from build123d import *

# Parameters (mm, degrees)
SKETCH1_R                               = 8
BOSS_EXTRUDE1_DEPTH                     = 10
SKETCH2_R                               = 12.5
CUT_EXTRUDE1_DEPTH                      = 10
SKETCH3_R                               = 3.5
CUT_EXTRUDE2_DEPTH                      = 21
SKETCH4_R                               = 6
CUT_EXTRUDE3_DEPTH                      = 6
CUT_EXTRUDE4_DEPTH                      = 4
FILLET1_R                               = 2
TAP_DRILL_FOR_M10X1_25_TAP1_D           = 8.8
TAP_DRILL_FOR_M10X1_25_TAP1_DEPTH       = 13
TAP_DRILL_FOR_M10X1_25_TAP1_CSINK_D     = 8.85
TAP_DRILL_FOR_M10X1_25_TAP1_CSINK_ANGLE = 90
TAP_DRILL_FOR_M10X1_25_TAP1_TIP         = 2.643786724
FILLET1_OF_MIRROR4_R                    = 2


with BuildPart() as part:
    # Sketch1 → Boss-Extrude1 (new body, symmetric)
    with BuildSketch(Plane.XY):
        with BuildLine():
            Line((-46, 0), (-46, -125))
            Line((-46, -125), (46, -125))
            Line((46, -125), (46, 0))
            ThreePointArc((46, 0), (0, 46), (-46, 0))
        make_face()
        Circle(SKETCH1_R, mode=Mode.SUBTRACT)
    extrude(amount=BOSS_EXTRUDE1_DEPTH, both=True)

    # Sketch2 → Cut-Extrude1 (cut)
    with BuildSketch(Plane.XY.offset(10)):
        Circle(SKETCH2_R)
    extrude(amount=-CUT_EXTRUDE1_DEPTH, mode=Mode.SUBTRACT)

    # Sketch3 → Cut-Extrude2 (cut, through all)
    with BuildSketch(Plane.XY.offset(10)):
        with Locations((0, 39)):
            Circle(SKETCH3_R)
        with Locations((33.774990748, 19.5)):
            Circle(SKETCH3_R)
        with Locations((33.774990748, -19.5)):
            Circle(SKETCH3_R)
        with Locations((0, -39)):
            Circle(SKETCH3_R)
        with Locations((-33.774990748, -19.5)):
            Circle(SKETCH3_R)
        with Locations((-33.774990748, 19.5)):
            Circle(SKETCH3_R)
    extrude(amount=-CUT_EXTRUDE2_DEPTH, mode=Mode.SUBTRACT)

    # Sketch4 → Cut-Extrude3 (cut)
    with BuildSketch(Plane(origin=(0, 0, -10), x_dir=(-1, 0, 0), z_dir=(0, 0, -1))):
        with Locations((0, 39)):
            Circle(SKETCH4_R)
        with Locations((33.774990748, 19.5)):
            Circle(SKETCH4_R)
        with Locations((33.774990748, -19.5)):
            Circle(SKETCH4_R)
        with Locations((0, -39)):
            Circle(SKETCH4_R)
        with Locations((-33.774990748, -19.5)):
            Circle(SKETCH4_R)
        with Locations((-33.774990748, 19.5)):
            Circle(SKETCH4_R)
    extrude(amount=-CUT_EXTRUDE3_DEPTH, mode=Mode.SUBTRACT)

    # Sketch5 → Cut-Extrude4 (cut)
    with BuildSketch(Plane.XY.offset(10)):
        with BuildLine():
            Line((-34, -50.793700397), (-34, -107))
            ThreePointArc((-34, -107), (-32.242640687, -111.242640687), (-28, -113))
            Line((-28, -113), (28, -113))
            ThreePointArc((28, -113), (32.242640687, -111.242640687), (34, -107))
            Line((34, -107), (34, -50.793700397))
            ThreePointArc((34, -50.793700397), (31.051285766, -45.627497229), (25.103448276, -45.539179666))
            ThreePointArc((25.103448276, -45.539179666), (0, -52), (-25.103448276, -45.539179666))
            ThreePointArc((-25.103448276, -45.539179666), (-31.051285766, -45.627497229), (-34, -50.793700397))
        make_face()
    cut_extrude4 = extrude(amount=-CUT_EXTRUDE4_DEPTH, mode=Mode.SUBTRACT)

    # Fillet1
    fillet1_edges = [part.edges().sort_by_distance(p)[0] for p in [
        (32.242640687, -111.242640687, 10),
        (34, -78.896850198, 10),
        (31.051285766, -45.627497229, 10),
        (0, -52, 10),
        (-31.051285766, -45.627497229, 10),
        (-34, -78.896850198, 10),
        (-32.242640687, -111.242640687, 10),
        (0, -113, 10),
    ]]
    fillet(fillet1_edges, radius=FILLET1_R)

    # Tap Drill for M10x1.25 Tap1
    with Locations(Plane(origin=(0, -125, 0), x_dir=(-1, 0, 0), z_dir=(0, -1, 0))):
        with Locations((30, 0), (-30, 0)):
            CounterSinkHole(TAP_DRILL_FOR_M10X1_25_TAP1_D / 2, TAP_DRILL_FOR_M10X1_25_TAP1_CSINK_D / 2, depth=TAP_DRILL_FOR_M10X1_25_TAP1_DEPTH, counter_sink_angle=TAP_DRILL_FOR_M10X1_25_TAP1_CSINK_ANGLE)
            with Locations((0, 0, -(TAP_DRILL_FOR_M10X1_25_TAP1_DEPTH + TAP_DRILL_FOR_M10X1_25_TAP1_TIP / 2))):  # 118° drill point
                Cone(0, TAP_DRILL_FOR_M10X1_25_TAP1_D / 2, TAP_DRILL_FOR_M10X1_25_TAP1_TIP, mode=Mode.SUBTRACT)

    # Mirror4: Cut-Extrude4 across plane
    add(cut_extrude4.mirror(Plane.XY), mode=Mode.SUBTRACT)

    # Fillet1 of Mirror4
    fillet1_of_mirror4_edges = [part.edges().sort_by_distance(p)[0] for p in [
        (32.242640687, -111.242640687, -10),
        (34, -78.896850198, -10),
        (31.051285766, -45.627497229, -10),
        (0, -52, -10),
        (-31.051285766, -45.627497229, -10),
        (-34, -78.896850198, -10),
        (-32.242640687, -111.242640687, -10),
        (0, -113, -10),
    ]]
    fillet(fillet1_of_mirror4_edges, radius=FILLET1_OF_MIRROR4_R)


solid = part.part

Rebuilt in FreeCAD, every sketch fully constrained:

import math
import FreeCAD as App
import Part
import Sketcher

V = App.Vector
Q = App.Units.Quantity


def edges_at(feature, points):
    """Names of the edges that pass closest to the given points."""
    edges = feature.Shape.Edges
    near = lambda p: min(range(len(edges)), key=lambda i: edges[i].distToShape(Part.Vertex(*p))[0])
    return sorted({f"Edge{near(p) + 1}" for p in points})

doc = App.newDocument("Part")
body = doc.addObject("PartDesign::Body", "Body")

# Sketch on XY plane
sketch1 = body.newObject("Sketcher::SketchObject", "Sketch")
sketch1.AttachmentSupport = (doc.getObject("XY_Plane"), [""])
sketch1.MapMode = "FlatFace"
sketch1.addGeometry([
    Part.LineSegment(V(-46, 0, 0), V(-46, -125, 0)),  # 0
    Part.LineSegment(V(-46, -125, 0), V(46, -125, 0)),  # 1
    Part.LineSegment(V(46, -125, 0), V(46, 0, 0)),  # 2
    Part.ArcOfCircle(Part.Circle(V(0, 0, 0), V(0, 0, 1), 46), math.radians(0), math.radians(180)),  # 3
    Part.Circle(V(0, 0, 0), V(0, 0, 1), 8),  # 4
], False)
sketch1.addConstraint([
    Sketcher.Constraint("Coincident", 0, 2, 1, 1),
    Sketcher.Constraint("Coincident", 1, 2, 2, 1),
    Sketcher.Constraint("Tangent", 2, 2, 3, 1),
    Sketcher.Constraint("Tangent", 3, 2, 0, 1),
    Sketcher.Constraint("Vertical", 0),
    Sketcher.Constraint("Horizontal", 1),
    Sketcher.Constraint("Vertical", 2),
    Sketcher.Constraint("Coincident", 3, 3, -1, 1),
    Sketcher.Constraint("Coincident", 4, 3, -1, 1),
    Sketcher.Constraint("Diameter", 4, Q("16 mm")),
    Sketcher.Constraint("Radius", 3, Q("46 mm")),
    Sketcher.Constraint("DistanceY", 0, 2, 0, 1, Q("125 mm")),
])
pad1 = body.newObject("PartDesign::Pad", "Pad")
pad1.Profile = sketch1
pad1.Length = 20
pad1.Midplane = True

# Sketch on XY plane
sketch2 = body.newObject("Sketcher::SketchObject", "Sketch001")
sketch2.AttachmentSupport = (doc.getObject("XY_Plane"), [""])
sketch2.MapMode = "FlatFace"
sketch2.AttachmentOffset = App.Placement(V(0, 0, 10), App.Rotation())
sketch2.addGeometry(Part.Circle(V(0, 0, 0), V(0, 0, 1), 12), False)
sketch2.addConstraint([
    Sketcher.Constraint("Coincident", 0, 3, -1, 1),
    Sketcher.Constraint("Diameter", 0, Q("25 mm")),
])
pocket1 = body.newObject("PartDesign::Pocket", "Pocket")
pocket1.Profile = sketch2
pocket1.Length = 10

# Sketch on XY plane
sketch3 = body.newObject("Sketcher::SketchObject", "Sketch002")
sketch3.AttachmentSupport = (doc.getObject("XY_Plane"), [""])
sketch3.MapMode = "FlatFace"
sketch3.AttachmentOffset = App.Placement(V(0, 0, 10), App.Rotation())
sketch3.addGeometry([
    Part.Circle(V(0, 39, 0), V(0, 0, 1), 3.5),  # 0
    Part.Circle(V(33.8, 19.5, 0), V(0, 0, 1), 3.5),  # 1
    Part.Circle(V(33.8, -19.5, 0), V(0, 0, 1), 3.5),  # 2
    Part.Circle(V(0, -39, 0), V(0, 0, 1), 3.5),  # 3
    Part.Circle(V(-33.8, -19.5, 0), V(0, 0, 1), 3.5),  # 4
    Part.Circle(V(-33.8, 19.5, 0), V(0, 0, 1), 3.5),  # 5
], False)
sketch3.addConstraint([
    Sketcher.Constraint("Equal", 0, 1),
    Sketcher.Constraint("Equal", 1, 2),
    Sketcher.Constraint("Equal", 2, 3),
    Sketcher.Constraint("Equal", 3, 4),
    Sketcher.Constraint("Equal", 4, 5),
    Sketcher.Constraint("Symmetric", 0, 3, 3, 3, -1, 1),
    Sketcher.Constraint("Symmetric", 1, 3, 4, 3, -1, 1),
    Sketcher.Constraint("Symmetric", 2, 3, 5, 3, -1, 1),
    Sketcher.Constraint("Symmetric", 2, 3, 4, 3, -2),
    Sketcher.Constraint("PointOnObject", 0, 3, -2),
    Sketcher.Constraint("Diameter", 0, Q("7 mm")),
    Sketcher.Constraint("DistanceY", -1, 1, 0, 3, Q("39 mm")),
    Sketcher.Constraint("DistanceY", 2, 3, 1, 3, Q("39 mm")),
    Sketcher.Constraint("DistanceX", -1, 1, 1, 3, Q("33.774991 mm")),
])
pocket2 = body.newObject("PartDesign::Pocket", "Pocket001")
pocket2.Profile = sketch3
pocket2.Type = "ThroughAll"

# Sketch on XY plane
sketch4 = body.newObject("Sketcher::SketchObject", "Sketch003")
sketch4.AttachmentSupport = (doc.getObject("XY_Plane"), [""])
sketch4.MapMode = "FlatFace"
sketch4.AttachmentOffset = App.Placement(V(0, 0, -10), App.Rotation())
sketch4.addGeometry([
    Part.Circle(V(0, 39, 0), V(0, 0, 1), 6),  # 0
    Part.Circle(V(-34, 20, 0), V(0, 0, 1), 6),  # 1
    Part.Circle(V(-34, -20, 0), V(0, 0, 1), 6),  # 2
    Part.Circle(V(0, -39, 0), V(0, 0, 1), 6),  # 3
    Part.Circle(V(34, -20, 0), V(0, 0, 1), 6),  # 4
    Part.Circle(V(34, 20, 0), V(0, 0, 1), 6),  # 5
], False)
sketch4.addConstraint([
    Sketcher.Constraint("Equal", 0, 1),
    Sketcher.Constraint("Equal", 1, 2),
    Sketcher.Constraint("Equal", 2, 3),
    Sketcher.Constraint("Equal", 3, 4),
    Sketcher.Constraint("Equal", 4, 5),
    Sketcher.Constraint("Symmetric", 0, 3, 3, 3, -1, 1),
    Sketcher.Constraint("Symmetric", 1, 3, 4, 3, -1, 1),
    Sketcher.Constraint("Symmetric", 2, 3, 5, 3, -1, 1),
    Sketcher.Constraint("Symmetric", 2, 3, 4, 3, -2),
    Sketcher.Constraint("PointOnObject", 0, 3, -2),
    Sketcher.Constraint("Diameter", 0, Q("12 mm")),
    Sketcher.Constraint("DistanceY", -1, 1, 0, 3, Q("39 mm")),
    Sketcher.Constraint("DistanceY", 2, 3, 1, 3, Q("39 mm")),
    Sketcher.Constraint("DistanceX", 1, 3, -1, 1, Q("33.774991 mm")),
])
pocket3 = body.newObject("PartDesign::Pocket", "Pocket002")
pocket3.Profile = sketch4
pocket3.Length = 6
pocket3.Reversed = True

# Sketch on XY plane
sketch5 = body.newObject("Sketcher::SketchObject", "Sketch004")
sketch5.AttachmentSupport = (doc.getObject("XY_Plane"), [""])
sketch5.MapMode = "FlatFace"
sketch5.AttachmentOffset = App.Placement(V(0, 0, 10), App.Rotation())
sketch5.addGeometry([
    Part.LineSegment(V(-34, -51, 0), V(-34, -107, 0)),  # 0
    Part.ArcOfCircle(Part.Circle(V(-28, -107, 0), V(0, 0, 1), 6), math.radians(180), math.radians(270)),  # 1
    Part.LineSegment(V(-28, -113, 0), V(28, -113, 0)),  # 2
    Part.ArcOfCircle(Part.Circle(V(28, -107, 0), V(0, 0, 1), 6), math.radians(-90), math.radians(0)),  # 3
    Part.LineSegment(V(34, -107, 0), V(34, -51, 0)),  # 4
    Part.ArcOfCircle(Part.Circle(V(28, -51, 0), V(0, 0, 1), 6), math.radians(0), math.radians(119)),  # 5
    Part.ArcOfCircle(Part.Circle(V(0, 0, 0), V(0, 0, 1), 52), math.radians(-119), math.radians(-61)),  # 6
    Part.ArcOfCircle(Part.Circle(V(-28, -51, 0), V(0, 0, 1), 6), math.radians(61), math.radians(180)),  # 7
], False)
sketch5.addConstraint([
    Sketcher.Constraint("Tangent", 0, 2, 1, 1),
    Sketcher.Constraint("Tangent", 1, 2, 2, 1),
    Sketcher.Constraint("Tangent", 2, 2, 3, 1),
    Sketcher.Constraint("Tangent", 3, 2, 4, 1),
    Sketcher.Constraint("Tangent", 4, 2, 5, 1),
    Sketcher.Constraint("Tangent", 5, 2, 6, 2),
    Sketcher.Constraint("Tangent", 6, 1, 7, 1),
    Sketcher.Constraint("Tangent", 7, 2, 0, 1),
    Sketcher.Constraint("Vertical", 0),
    Sketcher.Constraint("Horizontal", 2),
    Sketcher.Constraint("Vertical", 4),
    Sketcher.Constraint("Coincident", 6, 3, -1, 1),
    Sketcher.Constraint("Equal", 1, 3),
    Sketcher.Constraint("Equal", 3, 5),
    Sketcher.Constraint("Equal", 5, 7),
    Sketcher.Constraint("Horizontal", 5, 3, 7, 3),
    Sketcher.Constraint("Radius", 1, Q("6 mm")),
    Sketcher.Constraint("Radius", 6, Q("52 mm")),
    Sketcher.Constraint("DistanceX", 2, 1, 2, 2, Q("56 mm")),
    Sketcher.Constraint("DistanceY", 1, 3, -1, 1, Q("107 mm")),
])
pocket4 = body.newObject("PartDesign::Pocket", "Pocket003")
pocket4.Profile = sketch5
pocket4.Length = 4
doc.recompute()

fillet = body.newObject("PartDesign::Fillet", "Fillet")
fillet.Base = (pocket4, edges_at(pocket4, [
    (32.243, -111.243, 10),
    (34, -78.897, 10),
    (31.051, -45.627, 10),
    (0, -52, 10),
    (-31.051, -45.627, 10),
    (-34, -78.897, 10),
    (-32.243, -111.243, 10),
    (0, -113, 10),
]))
fillet.Radius = 2

# Sketch on XZ plane
sketch6 = body.newObject("Sketcher::SketchObject", "Sketch005")
sketch6.AttachmentSupport = (doc.getObject("XZ_Plane"), [""])
sketch6.MapMode = "FlatFace"
sketch6.AttachmentOffset = App.Placement(V(0, 0, 125), App.Rotation())
sketch6.addGeometry([
    Part.Circle(V(-30, 0, 0), V(0, 0, 1), 4.4),
    Part.Circle(V(30, 0, 0), V(0, 0, 1), 4.4),
], False)
sketch6.addConstraint([
    Sketcher.Constraint("Equal", 0, 1),
    Sketcher.Constraint("Symmetric", 0, 3, 1, 3, -1, 1),
    Sketcher.Constraint("PointOnObject", 0, 3, -1),
    Sketcher.Constraint("Diameter", 0, Q("8.8 mm")),
    Sketcher.Constraint("DistanceX", 0, 3, -1, 1, Q("30 mm")),
])
doc.recompute()
hole = body.newObject("PartDesign::Hole", "Hole")
hole.Profile = sketch6
hole.ThreadType = "None"
hole.Diameter = 8.8
hole.DepthType = "Dimension"
hole.Depth = 13
hole.DrillPoint = "Angled"
hole.DrillPointAngle = 118
hole.HoleCutType = "Countersink"
hole.HoleCutDiameter = 8.85
hole.HoleCutCountersinkAngle = 90
doc.recompute()

mirrored = body.newObject("PartDesign::Mirrored", "Mirrored")
mirrored.Originals = [pocket4]
mirrored.MirrorPlane = (doc.getObject("XY_Plane"), [""])
body.Tip = mirrored
doc.recompute()

fillet2 = body.newObject("PartDesign::Fillet", "Fillet001")
fillet2.Base = (mirrored, edges_at(mirrored, [
    (32.243, -111.243, -10),
    (34, -78.897, -10),
    (31.051, -45.627, -10),
    (0, -52, -10),
    (-31.051, -45.627, -10),
    (-34, -78.897, -10),
    (-32.243, -111.243, -10),
    (0, -113, -10),
]))
fillet2.Radius = 2

doc.recompute()
